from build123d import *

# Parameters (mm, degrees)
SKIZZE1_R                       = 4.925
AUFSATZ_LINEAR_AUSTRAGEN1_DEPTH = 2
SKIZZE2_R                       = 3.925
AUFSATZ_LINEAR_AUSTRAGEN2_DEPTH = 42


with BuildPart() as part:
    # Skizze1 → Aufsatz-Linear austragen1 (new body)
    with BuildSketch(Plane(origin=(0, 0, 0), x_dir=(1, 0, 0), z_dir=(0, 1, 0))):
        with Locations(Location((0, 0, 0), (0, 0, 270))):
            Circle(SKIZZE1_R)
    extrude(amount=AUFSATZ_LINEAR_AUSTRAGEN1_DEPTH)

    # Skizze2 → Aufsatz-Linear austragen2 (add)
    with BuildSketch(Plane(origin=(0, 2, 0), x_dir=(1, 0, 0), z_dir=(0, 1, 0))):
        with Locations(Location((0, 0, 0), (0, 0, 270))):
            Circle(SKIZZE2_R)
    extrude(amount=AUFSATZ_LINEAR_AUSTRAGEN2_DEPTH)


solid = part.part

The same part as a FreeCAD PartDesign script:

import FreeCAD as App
import Part
import Sketcher

V = App.Vector
Q = App.Units.Quantity

doc = App.newDocument("Part")
body = doc.addObject("PartDesign::Body", "Body")

# Sketch on XZ plane
sketch1 = body.newObject("Sketcher::SketchObject", "Sketch")
sketch1.AttachmentSupport = (doc.getObject("XZ_Plane"), [""])
sketch1.MapMode = "FlatFace"
sketch1.addGeometry(Part.Circle(V(0, 0, 0), V(0, 0, 1), 4.925), False)
sketch1.addConstraint(Sketcher.Constraint("Coincident", 0, 3, -1, 1))
sketch1.addConstraint(Sketcher.Constraint("Diameter", 0, Q("9.85 mm")))
pad1 = body.newObject("PartDesign::Pad", "Pad")
pad1.Profile = sketch1
pad1.Length = 2
pad1.Reversed = True

# Sketch on XZ plane
sketch2 = body.newObject("Sketcher::SketchObject", "Sketch001")
sketch2.AttachmentSupport = (doc.getObject("XZ_Plane"), [""])
sketch2.MapMode = "FlatFace"
sketch2.AttachmentOffset = App.Placement(V(0, 0, -2), App.Rotation())
sketch2.addGeometry(Part.Circle(V(0, 0, 0), V(0, 0, 1), 3.925), False)
sketch2.addConstraint(Sketcher.Constraint("Coincident", 0, 3, -1, 1))
sketch2.addConstraint(Sketcher.Constraint("Diameter", 0, Q("7.85 mm")))
pad2 = body.newObject("PartDesign::Pad", "Pad001")
pad2.Profile = sketch2
pad2.Length = 42
pad2.Reversed = True

doc.recompute()
